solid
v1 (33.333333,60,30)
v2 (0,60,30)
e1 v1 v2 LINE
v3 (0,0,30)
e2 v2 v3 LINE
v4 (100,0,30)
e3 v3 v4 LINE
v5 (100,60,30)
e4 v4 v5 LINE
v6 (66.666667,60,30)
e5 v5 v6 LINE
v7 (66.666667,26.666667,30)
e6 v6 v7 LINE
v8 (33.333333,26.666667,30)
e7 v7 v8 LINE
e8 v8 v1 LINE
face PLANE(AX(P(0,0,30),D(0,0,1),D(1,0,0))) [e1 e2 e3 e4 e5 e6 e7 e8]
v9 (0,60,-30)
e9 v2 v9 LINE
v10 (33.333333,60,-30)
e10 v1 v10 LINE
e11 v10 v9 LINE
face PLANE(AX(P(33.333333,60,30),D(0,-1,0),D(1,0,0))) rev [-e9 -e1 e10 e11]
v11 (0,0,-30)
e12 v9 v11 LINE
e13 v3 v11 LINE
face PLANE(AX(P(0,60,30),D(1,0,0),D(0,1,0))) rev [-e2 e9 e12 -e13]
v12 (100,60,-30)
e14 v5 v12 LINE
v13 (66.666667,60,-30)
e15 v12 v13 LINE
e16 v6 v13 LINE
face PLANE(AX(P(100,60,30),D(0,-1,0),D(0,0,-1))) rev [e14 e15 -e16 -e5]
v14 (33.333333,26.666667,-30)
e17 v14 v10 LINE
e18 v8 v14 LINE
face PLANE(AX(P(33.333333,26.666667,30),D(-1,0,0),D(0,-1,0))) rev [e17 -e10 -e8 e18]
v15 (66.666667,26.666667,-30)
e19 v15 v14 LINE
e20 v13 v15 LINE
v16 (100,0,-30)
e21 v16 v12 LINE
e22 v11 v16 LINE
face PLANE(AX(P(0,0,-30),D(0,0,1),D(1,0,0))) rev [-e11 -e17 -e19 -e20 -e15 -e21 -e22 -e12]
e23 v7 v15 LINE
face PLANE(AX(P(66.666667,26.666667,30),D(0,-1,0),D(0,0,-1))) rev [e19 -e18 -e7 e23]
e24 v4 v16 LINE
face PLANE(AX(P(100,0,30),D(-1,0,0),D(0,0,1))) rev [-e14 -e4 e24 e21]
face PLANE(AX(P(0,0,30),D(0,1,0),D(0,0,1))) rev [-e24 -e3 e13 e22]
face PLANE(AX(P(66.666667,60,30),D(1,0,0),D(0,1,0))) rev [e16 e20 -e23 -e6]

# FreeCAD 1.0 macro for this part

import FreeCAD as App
import Part
import Sketcher
from FreeCAD import Vector
Q = App.Units.Quantity


def add_polygon(sketch, points):
    """Adds a closed chain of lines whose ends are joined by coincident constraints."""
    first, n = sketch.GeometryCount, len(points)
    for a, b in zip(points, points[1:] + points[:1]):
        sketch.addGeometry(Part.LineSegment(App.Vector(*a, 0), App.Vector(*b, 0)), False)
    for i in range(n):
        sketch.addConstraint(Sketcher.Constraint("Coincident", first + i, 2, first + (i + 1) % n, 1))

doc = App.newDocument("Part")
body = doc.addObject("PartDesign::Body", "Body")

# Sketch on XY plane
sketch1 = body.newObject("Sketcher::SketchObject", "Sketch")
sketch1.AttachmentSupport = (doc.getObject("XY_Plane"), [""])
sketch1.MapMode = "FlatFace"
add_polygon(sketch1, [(0, 0), (100, 0), (100, 60), (67, 60), (67, 27), (33, 27), (33, 60), (0, 60)])  # lines 0-7
sketch1.addConstraint(Sketcher.Constraint("Horizontal", 0))
sketch1.addConstraint(Sketcher.Constraint("Vertical", 1))
sketch1.addConstraint(Sketcher.Constraint("Horizontal", 2))
sketch1.addConstraint(Sketcher.Constraint("Vertical", 3))
sketch1.addConstraint(Sketcher.Constraint("Horizontal", 4))
sketch1.addConstraint(Sketcher.Constraint("Vertical", 5))
sketch1.addConstraint(Sketcher.Constraint("Horizontal", 6))
sketch1.addConstraint(Sketcher.Constraint("Vertical", 7))
sketch1.addConstraint(Sketcher.Constraint("Coincident", 7, 2, -1, 1))
sketch1.addConstraint(Sketcher.Constraint("Horizontal", 2, 2, 5, 2))
sketch1.addConstraint(Sketcher.Constraint("Equal", 2, 4))
sketch1.addConstraint(Sketcher.Constraint("Equal", 4, 6))
sketch1.addConstraint(Sketcher.Constraint("Equal", 6, 3))
sketch1.addConstraint(Sketcher.Constraint("DistanceX", 0, 1, 0, 2, Q("100 mm")))
sketch1.addConstraint(Sketcher.Constraint("DistanceY", 1, 1, 1, 2, Q("60 mm")))
pad1 = body.newObject("PartDesign::Pad", "Pad")
pad1.Profile = sketch1
pad1.Length = 60
pad1.Midplane = True

doc.recompute()
